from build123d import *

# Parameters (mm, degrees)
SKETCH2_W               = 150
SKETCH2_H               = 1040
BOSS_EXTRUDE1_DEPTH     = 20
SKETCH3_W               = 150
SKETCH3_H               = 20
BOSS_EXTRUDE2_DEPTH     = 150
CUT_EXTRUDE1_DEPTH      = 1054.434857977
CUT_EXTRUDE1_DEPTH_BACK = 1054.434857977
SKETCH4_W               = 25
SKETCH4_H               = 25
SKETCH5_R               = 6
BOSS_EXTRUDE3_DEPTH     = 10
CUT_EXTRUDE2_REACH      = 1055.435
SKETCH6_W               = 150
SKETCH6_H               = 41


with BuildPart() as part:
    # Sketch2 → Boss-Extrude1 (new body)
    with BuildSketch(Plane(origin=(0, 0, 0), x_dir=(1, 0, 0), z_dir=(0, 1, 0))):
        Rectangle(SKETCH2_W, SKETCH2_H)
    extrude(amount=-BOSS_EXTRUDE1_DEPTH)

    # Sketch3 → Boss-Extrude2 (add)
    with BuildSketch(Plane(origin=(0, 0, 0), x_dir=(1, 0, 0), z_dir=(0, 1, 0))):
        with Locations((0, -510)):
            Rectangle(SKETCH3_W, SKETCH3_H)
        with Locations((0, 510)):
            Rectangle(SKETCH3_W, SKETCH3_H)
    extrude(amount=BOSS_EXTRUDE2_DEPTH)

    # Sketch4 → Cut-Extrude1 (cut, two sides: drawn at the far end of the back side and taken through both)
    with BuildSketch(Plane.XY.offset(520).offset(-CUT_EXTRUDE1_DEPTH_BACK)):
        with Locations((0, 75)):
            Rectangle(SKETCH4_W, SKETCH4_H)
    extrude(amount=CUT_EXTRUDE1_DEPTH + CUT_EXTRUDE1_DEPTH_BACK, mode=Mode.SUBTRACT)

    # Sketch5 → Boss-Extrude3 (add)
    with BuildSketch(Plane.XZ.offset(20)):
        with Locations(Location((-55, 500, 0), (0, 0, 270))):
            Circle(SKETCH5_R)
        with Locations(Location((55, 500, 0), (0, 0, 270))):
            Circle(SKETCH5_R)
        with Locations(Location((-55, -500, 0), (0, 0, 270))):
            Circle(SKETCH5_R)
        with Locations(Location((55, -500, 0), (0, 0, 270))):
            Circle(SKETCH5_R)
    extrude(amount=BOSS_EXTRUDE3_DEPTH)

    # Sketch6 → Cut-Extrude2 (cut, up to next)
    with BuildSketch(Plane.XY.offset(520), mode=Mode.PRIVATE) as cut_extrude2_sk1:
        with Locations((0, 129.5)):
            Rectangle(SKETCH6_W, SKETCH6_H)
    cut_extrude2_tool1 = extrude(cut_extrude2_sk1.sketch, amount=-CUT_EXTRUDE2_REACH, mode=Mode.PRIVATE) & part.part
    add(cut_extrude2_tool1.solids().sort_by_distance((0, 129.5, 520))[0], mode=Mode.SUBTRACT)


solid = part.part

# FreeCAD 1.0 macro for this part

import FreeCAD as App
import Part
import Sketcher
from FreeCAD import Vector


def add_polygon(sketch, points):
    """Adds a closed chain of lines whose ends are joined by coincident constraints."""
    first, n = sketch.GeometryCount, len(points)
    for a, b in zip(points, points[1:] + points[:1]):
        sketch.addGeometry(Part.LineSegment(App.Vector(*a, 0), App.Vector(*b, 0)), False)
    for i in range(n):
        sketch.addConstraint(Sketcher.Constraint("Coincident", first + i, 2, first + (i + 1) % n, 1))

doc = App.newDocument("Part")
body = doc.addObject("PartDesign::Body", "Body")

# Sketch on XZ plane
sketch1 = body.newObject("Sketcher::SketchObject", "Sketch")
sketch1.AttachmentSupport = (doc.getObject("XZ_Plane"), [""])
sketch1.MapMode = "FlatFace"
add_polygon(sketch1, [(-75, -520), (-75, 520), (75, 520), (75, -520)])  # lines 0-3
sketch1.addConstraint([
    Sketcher.Constraint("Vertical", 0),
    Sketcher.Constraint("Horizontal", 1),
    Sketcher.Constraint("Vertical", 2),
    Sketcher.Constraint("Horizontal", 3),
    Sketcher.Constraint("Symmetric", 0, 2, 2, 2, -1, 1),
    Sketcher.Constraint("DistanceX", 1, 1, 1, 2, 150.0),
    Sketcher.Constraint("DistanceY", 0, 1, 0, 2, 1040.0),
])
pad1 = body.newObject("PartDesign::Pad", "Pad")
pad1.Profile = sketch1
pad1.Length = 20

# Sketch on XZ plane
sketch2 = body.newObject("Sketcher::SketchObject", "Sketch001")
sketch2.AttachmentSupport = (doc.getObject("XZ_Plane"), [""])
sketch2.MapMode = "FlatFace"
add_polygon(sketch2, [(-75, 500), (-75, 520), (75, 520), (75, 500)])  # lines 0-3
add_polygon(sketch2, [(-75, -520), (-75, -500), (75, -500), (75, -520)])  # lines 4-7
sketch2.addConstraint([
    Sketcher.Constraint("Vertical", 0),
    Sketcher.Constraint("Horizontal", 1),
    Sketcher.Constraint("Vertical", 2),
    Sketcher.Constraint("Horizontal", 3),
    Sketcher.Constraint("Vertical", 4),
    Sketcher.Constraint("Horizontal", 5),
    Sketcher.Constraint("Vertical", 6),
    Sketcher.Constraint("Horizontal", 7),
    Sketcher.Constraint("Symmetric", 2, 2, 4, 2, -1, 1),
    Sketcher.Constraint("Symmetric", 0, 2, 6, 2, -1, 1),
    Sketcher.Constraint("Vertical", 3, 2, 4, 2),
    Sketcher.Constraint("DistanceX", 1, 1, 1, 2, 150.0),
    Sketcher.Constraint("DistanceY", 0, 1, 0, 2, 20.0),
    Sketcher.Constraint("DistanceY", -1, 1, 0, 2, 520.0),
])
pad2 = body.newObject("PartDesign::Pad", "Pad001")
pad2.Profile = sketch2
pad2.Length = 150
pad2.Reversed = True

# Sketch on XY plane
sketch3 = body.newObject("Sketcher::SketchObject", "Sketch002")
sketch3.AttachmentSupport = (doc.getObject("XY_Plane"), [""])
sketch3.MapMode = "FlatFace"
sketch3.AttachmentOffset = App.Placement(Vector(0, 0, 520), App.Rotation())
add_polygon(sketch3, [(-12.5, 87.5), (-12.5, 62.5), (12.5, 62.5), (12.5, 87.5)])  # lines 0-3
sketch3.addConstraint([
    Sketcher.Constraint("Vertical", 0),
    Sketcher.Constraint("Horizontal", 1),
    Sketcher.Constraint("Vertical", 2),
    Sketcher.Constraint("Horizontal", 3),
    Sketcher.Constraint("Equal", 3, 0),
    Sketcher.Constraint("DistanceX", 1, 1, 1, 2, 25.0),
    Sketcher.Constraint("DistanceX", 0, 2, -1, 1, 12.5),
    Sketcher.Constraint("DistanceY", -1, 1, 0, 2, 62.5),
])
pocket1 = body.newObject("PartDesign::Pocket", "Pocket")
pocket1.Profile = sketch3
pocket1.Type = "ThroughAll"
pocket1.Midplane = True

# Sketch on XZ plane
sketch4 = body.newObject("Sketcher::SketchObject", "Sketch003")
sketch4.AttachmentSupport = (doc.getObject("XZ_Plane"), [""])
sketch4.MapMode = "FlatFace"
sketch4.AttachmentOffset = App.Placement(Vector(0, 0, 20), App.Rotation())
sketch4.addGeometry([
    Part.Circle(Vector(-55, 500, 0), Vector(0, 0, 1), 6),
    Part.Circle(Vector(55, 500, 0), Vector(0, 0, 1), 6),
    Part.Circle(Vector(-55, -500, 0), Vector(0, 0, 1), 6),
    Part.Circle(Vector(55, -500, 0), Vector(0, 0, 1), 6),
], False)
sketch4.addConstraint([
    Sketcher.Constraint("Equal", 0, 1),
    Sketcher.Constraint("Equal", 1, 2),
    Sketcher.Constraint("Equal", 2, 3),
    Sketcher.Constraint("Symmetric", 1, 3, 2, 3, -1, 1),
    Sketcher.Constraint("Symmetric", 0, 3, 3, 3, -1, 1),
    Sketcher.Constraint("Symmetric", 0, 3, 1, 3, -2),
    Sketcher.Constraint("Diameter", 0, 12.0),
    Sketcher.Constraint("DistanceX", 0, 3, -1, 1, 55.0),
    Sketcher.Constraint("DistanceY", -1, 1, 0, 3, 500.0),
])
pad3 = body.newObject("PartDesign::Pad", "Pad002")
pad3.Profile = sketch4
pad3.Length = 10

# Sketch on XY plane
sketch5 = body.newObject("Sketcher::SketchObject", "Sketch004")
sketch5.AttachmentSupport = (doc.getObject("XY_Plane"), [""])
sketch5.MapMode = "FlatFace"
sketch5.AttachmentOffset = App.Placement(Vector(0, 0, 520), App.Rotation())
add_polygon(sketch5, [(-75, 150), (-75, 109), (75, 109), (75, 150)])  # lines 0-3
sketch5.addConstraint([
    Sketcher.Constraint("Vertical", 0),
    Sketcher.Constraint("Horizontal", 1),
    Sketcher.Constraint("Vertical", 2),
    Sketcher.Constraint("Horizontal", 3),
    Sketcher.Constraint("DistanceX", 1, 1, 1, 2, 150.0),
    Sketcher.Constraint("DistanceY", 0, 2, 0, 1, 41.0),
    Sketcher.Constraint("DistanceX", 0, 2, -1, 1, 75.0),
    Sketcher.Constraint("DistanceY", -1, 1, 0, 2, 109.0),
])
pocket2 = body.newObject("PartDesign::Pocket", "Pocket001")
pocket2.Profile = sketch5
pocket2.Type = "UpToFirst"

doc.recompute()
